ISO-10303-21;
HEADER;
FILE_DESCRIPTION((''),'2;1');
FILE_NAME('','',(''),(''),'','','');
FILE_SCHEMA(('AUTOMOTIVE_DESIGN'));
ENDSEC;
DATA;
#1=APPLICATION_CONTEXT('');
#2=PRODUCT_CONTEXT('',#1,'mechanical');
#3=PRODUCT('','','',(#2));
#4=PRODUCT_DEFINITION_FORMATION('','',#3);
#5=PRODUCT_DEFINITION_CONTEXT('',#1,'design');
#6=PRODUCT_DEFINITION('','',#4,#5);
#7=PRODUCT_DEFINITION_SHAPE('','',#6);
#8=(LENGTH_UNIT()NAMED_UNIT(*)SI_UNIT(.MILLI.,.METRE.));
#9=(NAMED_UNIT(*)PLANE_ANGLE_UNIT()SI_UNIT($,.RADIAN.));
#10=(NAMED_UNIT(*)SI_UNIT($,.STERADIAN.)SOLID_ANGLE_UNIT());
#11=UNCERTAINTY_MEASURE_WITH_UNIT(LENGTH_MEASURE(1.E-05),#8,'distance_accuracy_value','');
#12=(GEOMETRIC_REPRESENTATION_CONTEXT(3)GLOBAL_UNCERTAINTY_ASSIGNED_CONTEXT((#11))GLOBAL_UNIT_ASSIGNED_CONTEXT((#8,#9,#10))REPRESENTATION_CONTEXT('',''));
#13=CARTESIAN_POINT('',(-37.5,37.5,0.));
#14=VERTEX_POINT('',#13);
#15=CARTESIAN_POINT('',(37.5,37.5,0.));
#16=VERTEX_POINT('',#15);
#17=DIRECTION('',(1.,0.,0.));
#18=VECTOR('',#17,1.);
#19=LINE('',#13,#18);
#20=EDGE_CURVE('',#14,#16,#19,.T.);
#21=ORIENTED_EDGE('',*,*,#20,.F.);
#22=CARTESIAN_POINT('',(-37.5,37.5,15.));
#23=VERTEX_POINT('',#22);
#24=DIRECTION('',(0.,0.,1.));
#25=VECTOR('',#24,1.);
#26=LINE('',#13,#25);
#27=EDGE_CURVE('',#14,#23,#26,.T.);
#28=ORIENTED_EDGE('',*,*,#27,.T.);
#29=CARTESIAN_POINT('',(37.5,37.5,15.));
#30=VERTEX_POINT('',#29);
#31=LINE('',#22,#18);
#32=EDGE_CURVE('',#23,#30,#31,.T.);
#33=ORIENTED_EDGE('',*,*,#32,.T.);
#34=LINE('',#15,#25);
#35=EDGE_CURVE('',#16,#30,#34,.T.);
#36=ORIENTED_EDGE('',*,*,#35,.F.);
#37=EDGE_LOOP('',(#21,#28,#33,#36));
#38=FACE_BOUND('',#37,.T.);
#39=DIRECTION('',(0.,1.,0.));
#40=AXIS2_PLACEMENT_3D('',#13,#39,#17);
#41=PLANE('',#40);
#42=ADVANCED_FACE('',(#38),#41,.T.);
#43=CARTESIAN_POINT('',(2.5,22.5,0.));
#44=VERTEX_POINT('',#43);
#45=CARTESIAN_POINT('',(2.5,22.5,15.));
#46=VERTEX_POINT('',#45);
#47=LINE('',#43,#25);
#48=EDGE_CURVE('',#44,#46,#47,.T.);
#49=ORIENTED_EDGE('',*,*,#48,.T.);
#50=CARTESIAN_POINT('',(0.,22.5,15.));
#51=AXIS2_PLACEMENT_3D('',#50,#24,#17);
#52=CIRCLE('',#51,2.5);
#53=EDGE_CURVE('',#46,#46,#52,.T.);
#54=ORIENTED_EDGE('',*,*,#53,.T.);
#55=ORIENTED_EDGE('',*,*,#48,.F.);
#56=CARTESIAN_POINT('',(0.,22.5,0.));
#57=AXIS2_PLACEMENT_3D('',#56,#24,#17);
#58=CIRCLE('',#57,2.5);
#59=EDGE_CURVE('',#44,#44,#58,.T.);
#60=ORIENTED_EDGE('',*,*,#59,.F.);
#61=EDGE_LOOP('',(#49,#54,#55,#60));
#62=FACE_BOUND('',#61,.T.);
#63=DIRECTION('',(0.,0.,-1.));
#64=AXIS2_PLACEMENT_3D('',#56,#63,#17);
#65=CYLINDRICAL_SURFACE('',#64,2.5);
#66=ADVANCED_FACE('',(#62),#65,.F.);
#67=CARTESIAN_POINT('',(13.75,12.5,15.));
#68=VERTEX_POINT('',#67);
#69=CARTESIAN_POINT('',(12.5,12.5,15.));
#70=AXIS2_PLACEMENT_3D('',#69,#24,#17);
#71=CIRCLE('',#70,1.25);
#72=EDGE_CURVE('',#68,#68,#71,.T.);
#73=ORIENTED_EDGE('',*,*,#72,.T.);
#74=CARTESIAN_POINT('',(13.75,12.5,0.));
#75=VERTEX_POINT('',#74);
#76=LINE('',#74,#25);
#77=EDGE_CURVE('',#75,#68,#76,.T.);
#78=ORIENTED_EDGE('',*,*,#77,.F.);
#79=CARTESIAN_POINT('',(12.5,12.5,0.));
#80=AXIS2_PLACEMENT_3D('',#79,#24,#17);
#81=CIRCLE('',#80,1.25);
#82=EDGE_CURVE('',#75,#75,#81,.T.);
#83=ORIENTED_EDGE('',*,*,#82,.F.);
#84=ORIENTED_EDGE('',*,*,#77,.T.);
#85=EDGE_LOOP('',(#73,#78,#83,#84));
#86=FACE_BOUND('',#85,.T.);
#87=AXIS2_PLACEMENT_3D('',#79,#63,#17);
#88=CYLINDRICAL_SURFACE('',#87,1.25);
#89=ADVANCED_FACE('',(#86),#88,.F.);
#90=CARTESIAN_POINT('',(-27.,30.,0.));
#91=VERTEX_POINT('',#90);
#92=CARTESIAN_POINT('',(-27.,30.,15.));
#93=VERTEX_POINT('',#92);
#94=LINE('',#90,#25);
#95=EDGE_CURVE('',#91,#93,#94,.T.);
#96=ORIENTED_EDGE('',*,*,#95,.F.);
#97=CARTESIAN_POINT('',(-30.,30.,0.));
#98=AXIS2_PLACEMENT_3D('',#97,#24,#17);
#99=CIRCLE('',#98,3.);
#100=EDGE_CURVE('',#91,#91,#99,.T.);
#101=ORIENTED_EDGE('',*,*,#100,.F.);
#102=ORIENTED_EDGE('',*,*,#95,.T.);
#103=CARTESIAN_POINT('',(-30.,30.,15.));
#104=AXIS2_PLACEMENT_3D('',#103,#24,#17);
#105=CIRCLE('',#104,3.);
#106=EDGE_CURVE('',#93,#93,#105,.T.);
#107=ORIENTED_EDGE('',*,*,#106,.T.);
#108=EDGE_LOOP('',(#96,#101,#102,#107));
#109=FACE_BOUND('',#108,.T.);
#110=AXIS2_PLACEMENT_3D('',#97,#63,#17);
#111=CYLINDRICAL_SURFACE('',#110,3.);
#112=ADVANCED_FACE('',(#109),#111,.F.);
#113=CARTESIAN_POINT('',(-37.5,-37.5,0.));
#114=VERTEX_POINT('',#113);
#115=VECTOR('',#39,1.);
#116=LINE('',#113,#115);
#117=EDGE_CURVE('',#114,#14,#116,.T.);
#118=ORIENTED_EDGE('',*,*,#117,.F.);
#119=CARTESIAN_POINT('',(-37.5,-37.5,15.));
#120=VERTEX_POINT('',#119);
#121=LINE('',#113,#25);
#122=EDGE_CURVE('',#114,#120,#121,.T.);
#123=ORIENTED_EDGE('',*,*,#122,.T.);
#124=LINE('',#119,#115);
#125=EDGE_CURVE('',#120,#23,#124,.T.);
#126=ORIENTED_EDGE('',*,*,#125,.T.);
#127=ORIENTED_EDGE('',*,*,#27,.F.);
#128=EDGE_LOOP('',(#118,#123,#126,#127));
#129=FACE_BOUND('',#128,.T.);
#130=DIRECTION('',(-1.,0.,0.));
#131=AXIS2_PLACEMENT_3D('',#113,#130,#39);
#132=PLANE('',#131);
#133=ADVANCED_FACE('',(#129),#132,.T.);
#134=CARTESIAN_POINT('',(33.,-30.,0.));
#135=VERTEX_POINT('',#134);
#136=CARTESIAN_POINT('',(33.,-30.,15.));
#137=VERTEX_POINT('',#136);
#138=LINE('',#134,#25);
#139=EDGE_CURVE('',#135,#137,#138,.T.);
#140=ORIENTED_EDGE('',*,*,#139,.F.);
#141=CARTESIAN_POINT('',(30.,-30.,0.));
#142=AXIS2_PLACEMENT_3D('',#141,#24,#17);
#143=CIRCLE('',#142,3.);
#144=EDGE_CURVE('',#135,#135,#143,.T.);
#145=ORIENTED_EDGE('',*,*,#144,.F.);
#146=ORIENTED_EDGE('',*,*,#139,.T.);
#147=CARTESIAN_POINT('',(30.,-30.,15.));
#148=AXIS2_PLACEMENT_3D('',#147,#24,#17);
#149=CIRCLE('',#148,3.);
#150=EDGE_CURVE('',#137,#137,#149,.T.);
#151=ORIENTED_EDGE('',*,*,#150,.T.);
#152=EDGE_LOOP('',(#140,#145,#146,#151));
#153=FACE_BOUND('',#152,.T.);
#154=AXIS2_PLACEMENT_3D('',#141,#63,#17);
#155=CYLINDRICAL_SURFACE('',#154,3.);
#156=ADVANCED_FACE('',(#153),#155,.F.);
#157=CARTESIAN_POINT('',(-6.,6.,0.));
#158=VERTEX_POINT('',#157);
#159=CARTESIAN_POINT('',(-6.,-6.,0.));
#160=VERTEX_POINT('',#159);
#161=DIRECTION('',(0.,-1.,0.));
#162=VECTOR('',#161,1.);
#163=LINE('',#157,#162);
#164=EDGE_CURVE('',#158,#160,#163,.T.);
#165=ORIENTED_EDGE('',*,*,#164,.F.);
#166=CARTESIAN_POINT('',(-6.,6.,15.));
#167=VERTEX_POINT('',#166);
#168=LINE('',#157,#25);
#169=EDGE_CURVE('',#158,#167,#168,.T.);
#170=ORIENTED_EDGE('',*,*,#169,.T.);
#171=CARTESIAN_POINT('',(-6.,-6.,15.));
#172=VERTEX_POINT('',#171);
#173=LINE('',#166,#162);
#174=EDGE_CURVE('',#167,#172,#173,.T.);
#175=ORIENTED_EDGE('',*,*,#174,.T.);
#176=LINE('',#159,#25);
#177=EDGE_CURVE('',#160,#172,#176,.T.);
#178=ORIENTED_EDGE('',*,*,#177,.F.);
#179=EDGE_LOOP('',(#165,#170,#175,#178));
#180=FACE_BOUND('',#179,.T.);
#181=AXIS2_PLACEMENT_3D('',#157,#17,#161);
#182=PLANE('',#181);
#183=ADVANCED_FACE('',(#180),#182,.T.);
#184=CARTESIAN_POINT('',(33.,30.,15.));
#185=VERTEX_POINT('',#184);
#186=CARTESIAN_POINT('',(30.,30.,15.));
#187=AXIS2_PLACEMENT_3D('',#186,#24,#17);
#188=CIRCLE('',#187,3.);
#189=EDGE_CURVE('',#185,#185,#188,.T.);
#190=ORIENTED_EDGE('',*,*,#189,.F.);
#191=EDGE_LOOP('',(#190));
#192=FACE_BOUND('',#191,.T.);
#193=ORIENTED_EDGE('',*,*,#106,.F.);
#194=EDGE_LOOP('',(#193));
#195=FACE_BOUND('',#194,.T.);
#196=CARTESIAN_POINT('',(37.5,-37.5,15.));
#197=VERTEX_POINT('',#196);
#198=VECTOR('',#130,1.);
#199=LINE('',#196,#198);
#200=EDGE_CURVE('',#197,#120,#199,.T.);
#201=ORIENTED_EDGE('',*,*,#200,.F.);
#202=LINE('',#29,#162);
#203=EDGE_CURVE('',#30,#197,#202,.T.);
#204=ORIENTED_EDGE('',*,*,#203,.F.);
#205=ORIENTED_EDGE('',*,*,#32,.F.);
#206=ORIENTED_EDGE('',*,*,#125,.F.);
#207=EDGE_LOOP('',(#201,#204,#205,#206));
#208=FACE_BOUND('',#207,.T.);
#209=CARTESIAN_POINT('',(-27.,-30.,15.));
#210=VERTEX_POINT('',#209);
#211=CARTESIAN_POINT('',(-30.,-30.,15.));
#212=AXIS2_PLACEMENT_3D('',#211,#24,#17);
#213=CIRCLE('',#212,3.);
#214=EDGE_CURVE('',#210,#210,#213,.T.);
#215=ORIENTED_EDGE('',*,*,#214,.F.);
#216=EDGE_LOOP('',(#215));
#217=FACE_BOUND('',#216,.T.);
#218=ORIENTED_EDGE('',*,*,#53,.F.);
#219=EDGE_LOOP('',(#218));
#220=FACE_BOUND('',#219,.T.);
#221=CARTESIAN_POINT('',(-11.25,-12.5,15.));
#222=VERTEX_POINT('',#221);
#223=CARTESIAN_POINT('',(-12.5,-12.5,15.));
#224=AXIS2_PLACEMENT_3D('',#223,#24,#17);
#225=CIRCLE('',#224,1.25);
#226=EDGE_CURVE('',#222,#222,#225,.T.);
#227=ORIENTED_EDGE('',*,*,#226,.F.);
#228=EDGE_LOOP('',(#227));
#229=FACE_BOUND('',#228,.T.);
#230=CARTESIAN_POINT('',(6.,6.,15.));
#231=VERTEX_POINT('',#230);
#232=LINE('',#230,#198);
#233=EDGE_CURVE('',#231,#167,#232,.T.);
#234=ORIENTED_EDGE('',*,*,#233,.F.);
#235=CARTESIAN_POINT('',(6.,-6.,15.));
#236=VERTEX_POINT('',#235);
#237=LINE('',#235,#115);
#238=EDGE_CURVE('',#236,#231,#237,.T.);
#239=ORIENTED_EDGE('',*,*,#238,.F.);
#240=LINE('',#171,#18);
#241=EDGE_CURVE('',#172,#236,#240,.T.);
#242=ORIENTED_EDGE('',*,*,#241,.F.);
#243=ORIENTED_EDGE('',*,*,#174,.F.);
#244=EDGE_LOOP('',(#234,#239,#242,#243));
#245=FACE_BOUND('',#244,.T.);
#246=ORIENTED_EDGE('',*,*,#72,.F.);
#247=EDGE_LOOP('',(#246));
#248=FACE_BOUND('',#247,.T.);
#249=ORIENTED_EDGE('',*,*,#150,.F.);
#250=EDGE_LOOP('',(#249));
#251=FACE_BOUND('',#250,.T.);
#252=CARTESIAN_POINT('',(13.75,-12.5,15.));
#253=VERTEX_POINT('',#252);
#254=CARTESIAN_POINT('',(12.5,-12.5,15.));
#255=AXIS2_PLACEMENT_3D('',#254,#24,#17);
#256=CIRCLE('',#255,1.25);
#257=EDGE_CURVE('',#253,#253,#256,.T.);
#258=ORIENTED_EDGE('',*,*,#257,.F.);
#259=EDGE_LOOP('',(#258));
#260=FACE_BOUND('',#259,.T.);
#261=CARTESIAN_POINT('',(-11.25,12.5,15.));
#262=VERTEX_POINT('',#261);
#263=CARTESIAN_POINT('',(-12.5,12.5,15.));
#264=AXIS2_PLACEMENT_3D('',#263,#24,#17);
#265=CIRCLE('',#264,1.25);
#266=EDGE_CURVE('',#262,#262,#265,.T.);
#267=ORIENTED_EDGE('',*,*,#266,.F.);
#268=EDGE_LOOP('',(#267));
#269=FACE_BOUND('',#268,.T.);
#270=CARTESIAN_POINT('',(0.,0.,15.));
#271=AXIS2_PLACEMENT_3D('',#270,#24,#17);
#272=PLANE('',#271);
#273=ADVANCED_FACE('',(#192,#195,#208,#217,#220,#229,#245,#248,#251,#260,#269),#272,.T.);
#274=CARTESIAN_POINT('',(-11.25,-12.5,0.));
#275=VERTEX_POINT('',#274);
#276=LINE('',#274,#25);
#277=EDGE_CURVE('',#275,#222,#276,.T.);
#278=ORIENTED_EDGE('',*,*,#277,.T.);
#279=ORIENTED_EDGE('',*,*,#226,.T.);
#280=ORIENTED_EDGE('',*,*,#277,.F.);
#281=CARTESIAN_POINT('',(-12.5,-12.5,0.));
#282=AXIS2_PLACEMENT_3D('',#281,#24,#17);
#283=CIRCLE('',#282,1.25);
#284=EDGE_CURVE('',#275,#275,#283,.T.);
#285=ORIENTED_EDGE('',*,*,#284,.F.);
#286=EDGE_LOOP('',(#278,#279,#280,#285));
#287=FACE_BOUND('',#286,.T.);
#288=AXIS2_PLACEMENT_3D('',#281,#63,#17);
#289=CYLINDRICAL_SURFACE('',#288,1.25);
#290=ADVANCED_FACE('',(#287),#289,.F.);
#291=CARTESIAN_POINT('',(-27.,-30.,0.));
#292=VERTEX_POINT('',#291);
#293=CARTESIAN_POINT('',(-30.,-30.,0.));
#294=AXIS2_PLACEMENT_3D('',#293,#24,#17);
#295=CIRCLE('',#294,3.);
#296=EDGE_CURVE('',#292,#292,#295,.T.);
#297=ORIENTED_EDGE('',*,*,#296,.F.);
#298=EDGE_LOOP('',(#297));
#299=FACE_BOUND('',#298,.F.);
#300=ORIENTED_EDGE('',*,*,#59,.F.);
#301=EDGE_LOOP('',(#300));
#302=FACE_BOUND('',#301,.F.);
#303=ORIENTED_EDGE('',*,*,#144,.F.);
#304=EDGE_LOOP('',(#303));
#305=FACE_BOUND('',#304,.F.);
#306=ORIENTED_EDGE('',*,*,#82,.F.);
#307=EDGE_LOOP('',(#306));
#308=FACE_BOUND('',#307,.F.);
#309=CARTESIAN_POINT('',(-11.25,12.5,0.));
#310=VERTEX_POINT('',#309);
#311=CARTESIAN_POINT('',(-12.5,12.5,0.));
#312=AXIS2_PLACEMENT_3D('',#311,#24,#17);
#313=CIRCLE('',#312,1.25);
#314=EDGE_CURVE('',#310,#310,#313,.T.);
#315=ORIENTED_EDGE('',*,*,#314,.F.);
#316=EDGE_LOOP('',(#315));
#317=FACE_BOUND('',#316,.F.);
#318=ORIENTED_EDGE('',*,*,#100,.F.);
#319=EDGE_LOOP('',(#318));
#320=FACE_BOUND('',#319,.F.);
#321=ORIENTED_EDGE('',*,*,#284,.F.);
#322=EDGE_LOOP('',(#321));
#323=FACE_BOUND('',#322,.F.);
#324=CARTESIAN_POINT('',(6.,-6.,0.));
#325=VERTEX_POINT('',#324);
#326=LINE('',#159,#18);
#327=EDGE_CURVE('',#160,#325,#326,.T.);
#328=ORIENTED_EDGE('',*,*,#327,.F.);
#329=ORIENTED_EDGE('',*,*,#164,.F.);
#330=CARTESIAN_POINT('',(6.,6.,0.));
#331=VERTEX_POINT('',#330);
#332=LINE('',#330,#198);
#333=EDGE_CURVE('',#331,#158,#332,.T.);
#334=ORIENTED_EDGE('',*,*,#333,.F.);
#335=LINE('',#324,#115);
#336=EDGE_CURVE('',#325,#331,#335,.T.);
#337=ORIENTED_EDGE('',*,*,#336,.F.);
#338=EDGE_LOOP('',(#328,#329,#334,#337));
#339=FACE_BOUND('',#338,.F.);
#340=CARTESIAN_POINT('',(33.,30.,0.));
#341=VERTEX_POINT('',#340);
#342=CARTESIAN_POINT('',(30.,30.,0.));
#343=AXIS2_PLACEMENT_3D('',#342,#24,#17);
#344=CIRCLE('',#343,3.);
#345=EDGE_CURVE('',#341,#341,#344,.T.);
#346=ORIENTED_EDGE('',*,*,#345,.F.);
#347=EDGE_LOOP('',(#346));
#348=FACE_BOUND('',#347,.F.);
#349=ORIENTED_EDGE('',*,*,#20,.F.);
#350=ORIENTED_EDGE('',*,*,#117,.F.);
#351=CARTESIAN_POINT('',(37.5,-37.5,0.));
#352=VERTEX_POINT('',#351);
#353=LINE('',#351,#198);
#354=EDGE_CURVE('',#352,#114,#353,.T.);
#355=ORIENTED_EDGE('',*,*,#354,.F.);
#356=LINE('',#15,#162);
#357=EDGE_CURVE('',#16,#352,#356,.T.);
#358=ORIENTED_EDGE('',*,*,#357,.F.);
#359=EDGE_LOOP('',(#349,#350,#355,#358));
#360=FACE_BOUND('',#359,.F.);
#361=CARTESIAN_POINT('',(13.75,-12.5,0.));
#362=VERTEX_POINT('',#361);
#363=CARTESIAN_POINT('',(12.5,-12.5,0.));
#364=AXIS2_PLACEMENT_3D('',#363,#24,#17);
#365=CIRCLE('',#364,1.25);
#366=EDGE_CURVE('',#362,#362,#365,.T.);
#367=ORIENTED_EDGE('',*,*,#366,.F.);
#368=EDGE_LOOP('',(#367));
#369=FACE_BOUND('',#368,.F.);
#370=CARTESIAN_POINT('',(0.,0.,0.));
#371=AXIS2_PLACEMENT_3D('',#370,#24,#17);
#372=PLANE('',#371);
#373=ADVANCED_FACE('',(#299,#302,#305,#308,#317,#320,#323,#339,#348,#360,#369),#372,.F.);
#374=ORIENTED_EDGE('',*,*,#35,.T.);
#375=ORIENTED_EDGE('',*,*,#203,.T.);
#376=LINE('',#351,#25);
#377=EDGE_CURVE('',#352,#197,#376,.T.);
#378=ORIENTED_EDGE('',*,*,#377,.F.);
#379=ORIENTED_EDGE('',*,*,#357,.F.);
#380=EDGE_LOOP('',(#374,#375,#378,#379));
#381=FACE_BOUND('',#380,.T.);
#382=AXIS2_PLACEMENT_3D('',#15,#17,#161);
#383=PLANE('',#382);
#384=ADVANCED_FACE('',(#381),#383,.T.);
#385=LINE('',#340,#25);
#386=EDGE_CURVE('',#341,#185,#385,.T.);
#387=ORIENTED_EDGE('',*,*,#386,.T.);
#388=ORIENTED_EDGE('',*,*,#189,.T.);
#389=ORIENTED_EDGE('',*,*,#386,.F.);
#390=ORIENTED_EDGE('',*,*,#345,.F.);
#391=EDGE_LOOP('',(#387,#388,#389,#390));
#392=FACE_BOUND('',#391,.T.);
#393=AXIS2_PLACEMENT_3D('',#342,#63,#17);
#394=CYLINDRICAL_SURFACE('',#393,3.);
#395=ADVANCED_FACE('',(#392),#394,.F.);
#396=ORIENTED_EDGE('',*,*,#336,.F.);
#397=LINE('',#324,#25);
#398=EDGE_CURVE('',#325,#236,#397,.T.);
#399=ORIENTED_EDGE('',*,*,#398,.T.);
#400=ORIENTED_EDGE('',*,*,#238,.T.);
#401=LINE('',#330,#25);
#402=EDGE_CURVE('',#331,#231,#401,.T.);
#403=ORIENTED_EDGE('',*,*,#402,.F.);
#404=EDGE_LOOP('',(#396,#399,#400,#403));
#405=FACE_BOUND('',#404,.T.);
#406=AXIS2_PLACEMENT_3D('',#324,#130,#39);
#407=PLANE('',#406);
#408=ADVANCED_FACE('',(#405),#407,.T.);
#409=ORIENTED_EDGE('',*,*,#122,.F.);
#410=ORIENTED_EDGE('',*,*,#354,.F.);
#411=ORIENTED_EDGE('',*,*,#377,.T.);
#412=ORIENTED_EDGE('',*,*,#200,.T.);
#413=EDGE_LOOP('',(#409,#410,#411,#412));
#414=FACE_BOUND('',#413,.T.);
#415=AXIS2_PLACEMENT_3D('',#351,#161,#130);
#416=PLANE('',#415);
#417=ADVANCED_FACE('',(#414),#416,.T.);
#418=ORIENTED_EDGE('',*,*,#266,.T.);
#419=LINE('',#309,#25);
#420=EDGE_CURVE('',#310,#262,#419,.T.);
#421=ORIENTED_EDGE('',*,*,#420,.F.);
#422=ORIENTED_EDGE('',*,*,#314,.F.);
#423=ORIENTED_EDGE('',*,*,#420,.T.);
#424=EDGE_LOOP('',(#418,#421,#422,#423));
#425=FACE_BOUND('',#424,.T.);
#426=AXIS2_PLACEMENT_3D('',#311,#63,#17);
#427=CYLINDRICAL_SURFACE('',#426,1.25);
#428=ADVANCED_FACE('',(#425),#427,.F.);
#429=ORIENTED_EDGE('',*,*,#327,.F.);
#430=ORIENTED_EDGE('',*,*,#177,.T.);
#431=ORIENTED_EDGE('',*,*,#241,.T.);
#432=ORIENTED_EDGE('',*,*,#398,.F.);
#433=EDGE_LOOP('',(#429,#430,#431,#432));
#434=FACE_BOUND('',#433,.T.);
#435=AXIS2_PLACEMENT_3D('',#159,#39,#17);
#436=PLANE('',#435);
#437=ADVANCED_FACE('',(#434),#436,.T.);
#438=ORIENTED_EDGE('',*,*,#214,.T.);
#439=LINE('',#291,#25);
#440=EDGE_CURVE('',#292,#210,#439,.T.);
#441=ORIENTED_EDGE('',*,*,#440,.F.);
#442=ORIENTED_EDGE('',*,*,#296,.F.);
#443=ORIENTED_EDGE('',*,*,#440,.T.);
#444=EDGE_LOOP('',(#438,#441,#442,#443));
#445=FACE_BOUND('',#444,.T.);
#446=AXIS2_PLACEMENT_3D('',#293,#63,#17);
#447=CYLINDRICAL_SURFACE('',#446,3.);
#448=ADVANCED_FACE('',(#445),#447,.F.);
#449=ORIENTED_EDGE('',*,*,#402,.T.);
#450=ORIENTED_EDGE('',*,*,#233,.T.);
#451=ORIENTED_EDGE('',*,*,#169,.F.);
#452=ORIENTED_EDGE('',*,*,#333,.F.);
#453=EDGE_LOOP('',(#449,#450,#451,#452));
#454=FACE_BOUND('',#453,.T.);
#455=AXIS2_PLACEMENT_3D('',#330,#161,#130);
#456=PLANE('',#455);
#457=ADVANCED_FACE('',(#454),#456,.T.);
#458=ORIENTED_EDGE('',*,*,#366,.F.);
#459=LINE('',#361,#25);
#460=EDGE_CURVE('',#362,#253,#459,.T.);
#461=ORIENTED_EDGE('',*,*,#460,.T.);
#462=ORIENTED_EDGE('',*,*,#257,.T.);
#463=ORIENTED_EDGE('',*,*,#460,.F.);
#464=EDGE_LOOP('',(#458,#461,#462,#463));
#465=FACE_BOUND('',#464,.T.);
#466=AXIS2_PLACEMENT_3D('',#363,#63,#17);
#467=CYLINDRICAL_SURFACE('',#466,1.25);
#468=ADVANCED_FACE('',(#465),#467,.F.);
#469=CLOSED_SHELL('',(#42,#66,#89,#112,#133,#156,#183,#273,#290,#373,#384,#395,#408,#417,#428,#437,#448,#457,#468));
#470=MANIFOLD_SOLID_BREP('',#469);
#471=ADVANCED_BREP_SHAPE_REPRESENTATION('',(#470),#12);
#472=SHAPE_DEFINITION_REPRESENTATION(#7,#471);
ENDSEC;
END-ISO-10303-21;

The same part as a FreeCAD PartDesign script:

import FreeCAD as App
import Part
import Sketcher

V = App.Vector
Q = App.Units.Quantity


def add_polygon(sketch, points):
    """Adds a closed chain of lines whose ends are joined by coincident constraints."""
    first, n = sketch.GeometryCount, len(points)
    for a, b in zip(points, points[1:] + points[:1]):
        sketch.addGeometry(Part.LineSegment(App.Vector(*a, 0), App.Vector(*b, 0)), False)
    for i in range(n):
        sketch.addConstraint(Sketcher.Constraint("Coincident", first + i, 2, first + (i + 1) % n, 1))

doc = App.newDocument("Part")
body = doc.addObject("PartDesign::Body", "Body")

sketch1 = body.newObject("Sketcher::SketchObject", "Sketch")
sketch1.AttachmentSupport = (doc.getObject("XY_Plane"), [""])
sketch1.MapMode = "FlatFace"
add_polygon(sketch1, [(37.5, 37.5), (-37.5, 37.5), (-37.5, -37.5), (37.5, -37.5)])
sketch1.addGeometry(Part.Circle(V(-30, -30, 0), V(0, 0, 1), 3), False)
sketch1.addGeometry(Part.Circle(V(-12.5, -12.5, 0), V(0, 0, 1), 1.25), False)
sketch1.addGeometry(Part.Circle(V(30, -30, 0), V(0, 0, 1), 3), False)
sketch1.addGeometry(Part.Circle(V(12.5, -12.5, 0), V(0, 0, 1), 1.25), False)
sketch1.addGeometry(Part.Circle(V(-12.5, 12.5, 0), V(0, 0, 1), 1.25), False)
sketch1.addGeometry(Part.Circle(V(-30, 30, 0), V(0, 0, 1), 3), False)
add_polygon(sketch1, [(6, -6), (-6, -6), (-6, 6), (6, 6)])
sketch1.addGeometry(Part.Circle(V(12.5, 12.5, 0), V(0, 0, 1), 1.25), False)
sketch1.addGeometry(Part.Circle(V(0, 22.5, 0), V(0, 0, 1), 2.5), False)
sketch1.addGeometry(Part.Circle(V(30, 30, 0), V(0, 0, 1), 3), False)
sketch1.addConstraint(Sketcher.Constraint("Horizontal", 0))
sketch1.addConstraint(Sketcher.Constraint("Vertical", 1))
sketch1.addConstraint(Sketcher.Constraint("Horizontal", 2))
sketch1.addConstraint(Sketcher.Constraint("Vertical", 3))
sketch1.addConstraint(Sketcher.Constraint("Horizontal", 10))
sketch1.addConstraint(Sketcher.Constraint("Vertical", 11))
sketch1.addConstraint(Sketcher.Constraint("Horizontal", 12))
sketch1.addConstraint(Sketcher.Constraint("Vertical", 13))
sketch1.addConstraint(Sketcher.Constraint("Equal", 4, 6))
sketch1.addConstraint(Sketcher.Constraint("Equal", 5, 7))
sketch1.addConstraint(Sketcher.Constraint("Equal", 7, 8))
sketch1.addConstraint(Sketcher.Constraint("Equal", 6, 9))
sketch1.addConstraint(Sketcher.Constraint("Equal", 8, 14))
sketch1.addConstraint(Sketcher.Constraint("Equal", 9, 16))
sketch1.addConstraint(Sketcher.Constraint("Symmetric", 7, 3, 8, 3, -1, 1))
sketch1.addConstraint(Sketcher.Constraint("Symmetric", 6, 3, 9, 3, -1, 1))
sketch1.addConstraint(Sketcher.Constraint("Symmetric", 5, 3, 14, 3, -1, 1))
sketch1.addConstraint(Sketcher.Constraint("Symmetric", 4, 3, 16, 3, -1, 1))
sketch1.addConstraint(Sketcher.Constraint("Symmetric", 0, 2, 2, 2, -1, 1))
sketch1.addConstraint(Sketcher.Constraint("Symmetric", 10, 2, 12, 2, -1, 1))
sketch1.addConstraint(Sketcher.Constraint("Symmetric", 4, 3, 6, 3, -2))
sketch1.addConstraint(Sketcher.Constraint("Symmetric", 5, 3, 7, 3, -2))
sketch1.addConstraint(Sketcher.Constraint("PointOnObject", 15, 3, -2))
sketch1.addConstraint(Sketcher.Constraint("Equal", 2, 1))
sketch1.addConstraint(Sketcher.Constraint("Equal", 12, 11))
sketch1.addConstraint(Sketcher.Constraint("Diameter", 4, Q("6 mm")))
sketch1.addConstraint(Sketcher.Constraint("Diameter", 15, Q("5 mm")))
sketch1.addConstraint(Sketcher.Constraint("Diameter", 5, Q("2.5 mm")))
sketch1.addConstraint(Sketcher.Constraint("DistanceX", 0, 2, 0, 1, Q("75 mm")))
sketch1.addConstraint(Sketcher.Constraint("DistanceX", 10, 2, 10, 1, Q("12 mm")))
sketch1.addConstraint(Sketcher.Constraint("DistanceX", 4, 3, 6, 3, Q("60 mm")))
sketch1.addConstraint(Sketcher.Constraint("DistanceX", 5, 3, 7, 3, Q("25 mm")))
sketch1.addConstraint(Sketcher.Constraint("DistanceY", 5, 3, 8, 3, Q("25 mm")))
sketch1.addConstraint(Sketcher.Constraint("DistanceY", 4, 3, 9, 3, Q("60 mm")))
sketch1.addConstraint(Sketcher.Constraint("DistanceY", 15, 3, 0, 2, Q("15 mm")))
pad1 = body.newObject("PartDesign::Pad", "Pad")
pad1.Profile = sketch1
pad1.Length = 15

doc.recompute()
